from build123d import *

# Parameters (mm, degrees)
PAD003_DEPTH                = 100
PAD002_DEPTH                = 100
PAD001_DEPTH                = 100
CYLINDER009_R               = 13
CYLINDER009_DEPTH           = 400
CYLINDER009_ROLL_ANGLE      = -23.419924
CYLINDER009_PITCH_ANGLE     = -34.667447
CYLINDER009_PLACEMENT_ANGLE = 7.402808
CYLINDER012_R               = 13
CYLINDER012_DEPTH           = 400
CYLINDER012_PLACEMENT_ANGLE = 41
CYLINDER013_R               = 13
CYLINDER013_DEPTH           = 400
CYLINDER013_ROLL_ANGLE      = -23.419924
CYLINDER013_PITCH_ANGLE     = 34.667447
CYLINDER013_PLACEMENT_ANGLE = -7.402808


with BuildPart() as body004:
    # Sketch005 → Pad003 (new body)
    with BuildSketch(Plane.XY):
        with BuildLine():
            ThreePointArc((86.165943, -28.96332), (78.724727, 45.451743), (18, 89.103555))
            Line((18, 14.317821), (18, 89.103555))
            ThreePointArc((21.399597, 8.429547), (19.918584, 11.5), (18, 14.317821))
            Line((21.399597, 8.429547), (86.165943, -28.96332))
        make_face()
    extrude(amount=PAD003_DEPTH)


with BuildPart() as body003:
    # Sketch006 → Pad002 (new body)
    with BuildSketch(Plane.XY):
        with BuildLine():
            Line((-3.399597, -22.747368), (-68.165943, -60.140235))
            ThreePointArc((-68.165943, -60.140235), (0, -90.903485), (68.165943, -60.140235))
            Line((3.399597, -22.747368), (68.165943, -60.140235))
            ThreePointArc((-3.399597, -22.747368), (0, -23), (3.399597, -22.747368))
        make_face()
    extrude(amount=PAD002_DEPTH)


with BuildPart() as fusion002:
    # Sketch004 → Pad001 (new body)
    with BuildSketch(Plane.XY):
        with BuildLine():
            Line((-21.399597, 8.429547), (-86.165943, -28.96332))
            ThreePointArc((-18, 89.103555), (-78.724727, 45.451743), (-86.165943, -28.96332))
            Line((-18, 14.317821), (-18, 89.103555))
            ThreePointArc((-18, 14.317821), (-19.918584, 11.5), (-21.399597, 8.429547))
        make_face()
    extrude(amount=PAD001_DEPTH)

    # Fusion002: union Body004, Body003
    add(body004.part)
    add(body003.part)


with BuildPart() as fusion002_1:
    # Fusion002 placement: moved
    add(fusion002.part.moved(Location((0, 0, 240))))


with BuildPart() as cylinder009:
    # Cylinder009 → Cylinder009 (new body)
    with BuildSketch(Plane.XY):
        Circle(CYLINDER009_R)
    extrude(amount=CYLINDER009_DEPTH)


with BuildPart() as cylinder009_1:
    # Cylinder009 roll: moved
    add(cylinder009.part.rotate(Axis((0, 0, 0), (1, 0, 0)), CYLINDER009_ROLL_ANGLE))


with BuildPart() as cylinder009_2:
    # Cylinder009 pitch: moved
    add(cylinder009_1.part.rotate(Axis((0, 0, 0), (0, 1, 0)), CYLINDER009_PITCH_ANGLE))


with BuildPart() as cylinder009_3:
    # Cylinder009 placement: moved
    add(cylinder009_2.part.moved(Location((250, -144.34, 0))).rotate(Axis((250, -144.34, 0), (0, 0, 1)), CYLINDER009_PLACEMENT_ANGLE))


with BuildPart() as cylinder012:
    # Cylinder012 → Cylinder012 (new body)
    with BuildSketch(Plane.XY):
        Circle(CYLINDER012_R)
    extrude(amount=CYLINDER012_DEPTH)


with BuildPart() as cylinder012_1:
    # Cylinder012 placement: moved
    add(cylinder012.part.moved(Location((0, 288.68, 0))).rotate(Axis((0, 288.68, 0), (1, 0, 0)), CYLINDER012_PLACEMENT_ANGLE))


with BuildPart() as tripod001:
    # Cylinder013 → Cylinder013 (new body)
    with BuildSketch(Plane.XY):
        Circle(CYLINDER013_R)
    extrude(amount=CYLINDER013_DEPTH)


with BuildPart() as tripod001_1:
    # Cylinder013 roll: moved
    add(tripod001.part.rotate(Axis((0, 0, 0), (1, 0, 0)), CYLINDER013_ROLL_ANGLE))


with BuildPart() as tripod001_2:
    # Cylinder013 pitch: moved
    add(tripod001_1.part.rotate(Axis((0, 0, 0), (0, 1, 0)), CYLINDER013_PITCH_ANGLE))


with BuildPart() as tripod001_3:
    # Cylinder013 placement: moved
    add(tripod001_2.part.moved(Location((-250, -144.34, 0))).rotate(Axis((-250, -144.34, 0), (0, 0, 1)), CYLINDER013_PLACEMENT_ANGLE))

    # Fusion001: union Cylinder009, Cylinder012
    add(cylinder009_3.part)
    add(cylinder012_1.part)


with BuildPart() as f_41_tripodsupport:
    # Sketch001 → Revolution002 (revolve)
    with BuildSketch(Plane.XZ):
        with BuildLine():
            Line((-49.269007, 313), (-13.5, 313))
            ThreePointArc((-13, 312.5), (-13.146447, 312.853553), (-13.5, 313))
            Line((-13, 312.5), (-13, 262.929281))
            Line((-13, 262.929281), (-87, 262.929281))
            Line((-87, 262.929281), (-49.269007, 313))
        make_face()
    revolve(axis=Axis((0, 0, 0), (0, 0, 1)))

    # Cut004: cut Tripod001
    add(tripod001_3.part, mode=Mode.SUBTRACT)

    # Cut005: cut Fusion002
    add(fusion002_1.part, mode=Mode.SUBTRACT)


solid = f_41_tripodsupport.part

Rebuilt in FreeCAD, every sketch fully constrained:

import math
import FreeCAD as App
import Part
import Sketcher

V = App.Vector
Q = App.Units.Quantity

doc = App.newDocument("Part")
body = doc.addObject("PartDesign::Body", "Body")

# Sketch on XY plane
sketch1 = doc.addObject("Sketcher::SketchObject", "Sketch")
body.addObject(sketch1)
sketch1.AttachmentSupport = (doc.XY_Plane, [""])
sketch1.MapMode = "FlatFace"
sketch1.addGeometry([
    Part.ArcOfCircle(Part.Circle(V(0, 0, 0), V(0, 0, 1), 90.903485), math.radians(-18.579257), math.radians(78.579258)),
    Part.LineSegment(V(18, 89.103555, 0), V(18, 14.317821, 0)),
    Part.ArcOfCircle(Part.Circle(V(-0.00003, -0.000019, 0), V(0, 0, 1), 23.000035), math.radians(21.500066), math.radians(38.49994)),
    Part.LineSegment(V(21.399597, 8.429547, 0), V(86.165943, -28.96332, 0)),
], False)
sketch1.addConstraint([
    Sketcher.Constraint("Coincident", 0, 2, 1, 1),
    Sketcher.Constraint("Coincident", 1, 2, 2, 2),
    Sketcher.Constraint("Coincident", 2, 1, 3, 1),
    Sketcher.Constraint("Coincident", 3, 2, 0, 1),
    Sketcher.Constraint("Vertical", 1),
    Sketcher.Constraint("Coincident", 0, 3, -1, 1),
    Sketcher.Constraint("Angle", 3, Q("-30 deg")),
    Sketcher.Constraint("DistanceX", -1, 1, 0, 2, Q("18 mm")),
    Sketcher.Constraint("Radius", 0, Q("90.903485 mm")),
    Sketcher.Constraint("Radius", 2, Q("23.000035 mm")),
    Sketcher.Constraint("DistanceY", 3, 2, 2, 3, Q("28.963301 mm")),
    Sketcher.Constraint("DistanceY", 1, 2, 1, 1, Q("74.785734 mm")),
    Sketcher.Constraint("DistanceY", 3, 2, -1, 1, Q("28.96332 mm")),
])
pad1 = doc.addObject("PartDesign::Pad", "Pad")
body.addObject(pad1)
pad1.Profile = sketch1
pad1.Length = 100
body2 = doc.addObject("PartDesign::Body", "Body001")

# Sketch on XY plane
sketch2 = doc.addObject("Sketcher::SketchObject", "Sketch001")
body2.addObject(sketch2)
sketch2.AttachmentSupport = (doc.getObject("XY_Plane001"), [""])
sketch2.MapMode = "FlatFace"
sketch2.addGeometry([
    Part.LineSegment(V(-3.399597, -22.747368, 0), V(-68.165943, -60.140235, 0)),
    Part.ArcOfCircle(Part.Circle(V(0, 0.000001, 0), V(0, 0, 1), 90.903486), math.radians(-138.579257), math.radians(-41.420743)),
    Part.LineSegment(V(68.165943, -60.140235, 0), V(3.399597, -22.747368, 0)),
    Part.ArcOfCircle(Part.Circle(V(0, 0.000021, 0), V(0, 0, 1), 23.000021), math.radians(-98.499943), math.radians(-81.500057)),
], False)
sketch2.addConstraint([
    Sketcher.Constraint("Coincident", 0, 2, 1, 1),
    Sketcher.Constraint("Coincident", 1, 2, 2, 1),
    Sketcher.Constraint("Coincident", 2, 2, 3, 2),
    Sketcher.Constraint("Coincident", 3, 1, 0, 1),
    Sketcher.Constraint("Coincident", 1, 3, -1, 1),
    Sketcher.Constraint("Symmetric", 2, 2, 3, 1, -2),
    Sketcher.Constraint("Horizontal", 0, 2, 1, 2),
    Sketcher.Constraint("Angle", 0, Q("-150 deg")),
    Sketcher.Constraint("Radius", 3, Q("23.000021 mm")),
    Sketcher.Constraint("Radius", 1, Q("90.903486 mm")),
    Sketcher.Constraint("DistanceY", 2, 2, -1, 1, Q("22.747368 mm")),
    Sketcher.Constraint("DistanceY", 2, 2, 3, 3, Q("22.747389 mm")),
])
pad2 = doc.addObject("PartDesign::Pad", "Pad001")
body2.addObject(pad2)
pad2.Profile = sketch2
pad2.Length = 100
body3 = doc.addObject("PartDesign::Body", "Body002")
body3.AllowCompound = True

# Sketch on XY plane
sketch3 = doc.addObject("Sketcher::SketchObject", "Sketch002")
body3.addObject(sketch3)
sketch3.AttachmentSupport = (doc.getObject("XY_Plane002"), [""])
sketch3.MapMode = "FlatFace"
sketch3.addGeometry([
    Part.LineSegment(V(-86.165943, -28.96332, 0), V(-21.399597, 8.429547, 0)),
    Part.ArcOfCircle(Part.Circle(V(0.00003, -0.000019, 0), V(0, 0, 1), 23.000035), math.radians(141.50006), math.radians(158.499934)),
    Part.LineSegment(V(-18, 14.317821, 0), V(-18, 89.103555, 0)),
    Part.ArcOfCircle(Part.Circle(V(0, 0, 0), V(0, 0, 1), 90.903485), math.radians(101.420742), math.radians(198.579257)),
], False)
sketch3.addConstraint([
    Sketcher.Constraint("Coincident", 0, 2, 1, 2),
    Sketcher.Constraint("Coincident", 1, 1, 2, 1),
    Sketcher.Constraint("Coincident", 2, 2, 3, 1),
    Sketcher.Constraint("Coincident", 3, 2, 0, 1),
    Sketcher.Constraint("Vertical", 2),
    Sketcher.Constraint("Coincident", 3, 3, -1, 1),
    Sketcher.Constraint("Angle", 0, Q("30 deg")),
    Sketcher.Constraint("DistanceX", 1, 1, -1, 1, Q("18 mm")),
    Sketcher.Constraint("Radius", 1, Q("23.000035 mm")),
    Sketcher.Constraint("Radius", 3, Q("90.903485 mm")),
    Sketcher.Constraint("DistanceY", 3, 2, 1, 3, Q("28.963301 mm")),
    Sketcher.Constraint("DistanceY", 2, 1, 2, 2, Q("74.785734 mm")),
    Sketcher.Constraint("DistanceY", 3, 2, -1, 1, Q("28.96332 mm")),
])
pad3 = doc.addObject("PartDesign::Pad", "Pad002")
body3.addObject(pad3)
pad3.Profile = sketch3
pad3.Length = 100
doc.recompute()

boolean = doc.addObject("PartDesign::Boolean", "Boolean")
body3.addObject(boolean)
boolean.Type = "Fuse"
boolean.addObjects([body])
doc.recompute()

boolean2 = doc.addObject("PartDesign::Boolean", "Boolean001")
body3.addObject(boolean2)
boolean2.Type = "Fuse"
boolean2.addObjects([body2])
body4 = doc.addObject("PartDesign::Body", "Body003")
body4.AllowCompound = True
doc.recompute()

body3.Placement = App.Placement(V(0, 0, 240), App.Rotation(V(0, 0, 1), 0))
boolean3 = doc.addObject("PartDesign::Boolean", "Boolean002")
body4.addObject(boolean3)
boolean3.Type = "Fuse"
boolean3.addObjects([body3])
body5 = doc.addObject("PartDesign::Body", "Body004")

# Sketch on XY plane
sketch4 = doc.addObject("Sketcher::SketchObject", "Sketch003")
body5.addObject(sketch4)
sketch4.AttachmentSupport = (doc.getObject("XY_Plane004"), [""])
sketch4.MapMode = "FlatFace"
sketch4.addGeometry(Part.Circle(V(0, 0, 0), V(0, 0, 1), 13), False)
sketch4.addConstraint([
    Sketcher.Constraint("Coincident", 0, 3, -1, 1),
    Sketcher.Constraint("Diameter", 0, Q("26 mm")),
])
pad4 = doc.addObject("PartDesign::Pad", "Pad003")
body5.addObject(pad4)
pad4.Profile = sketch4
pad4.Length = 400
body6 = doc.addObject("PartDesign::Body", "Body005")
doc.recompute()

body5.Placement = App.Placement(V(0, 0, 0), App.Rotation(V(1, 0, 0), 336.580076))
boolean4 = doc.addObject("PartDesign::Boolean", "Boolean003")
body6.addObject(boolean4)
boolean4.Type = "Fuse"
boolean4.addObjects([body5])
body7 = doc.addObject("PartDesign::Body", "Body006")
doc.recompute()

body6.Placement = App.Placement(V(0, 0, 0), App.Rotation(V(0, 1, 0), 325.332553))
boolean5 = doc.addObject("PartDesign::Boolean", "Boolean004")
body7.addObject(boolean5)
boolean5.Type = "Fuse"
boolean5.addObjects([body6])
body8 = doc.addObject("PartDesign::Body", "Body007")
doc.recompute()

body7.Placement = App.Placement(V(250, -144.34, 0), App.Rotation(V(0, 0, 1), 7.402808))
boolean6 = doc.addObject("PartDesign::Boolean", "Boolean005")
body8.addObject(boolean6)
boolean6.Type = "Fuse"
boolean6.addObjects([body7])
body9 = doc.addObject("PartDesign::Body", "Body008")

# Sketch on XY plane
sketch5 = doc.addObject("Sketcher::SketchObject", "Sketch004")
body9.addObject(sketch5)
sketch5.AttachmentSupport = (doc.getObject("XY_Plane008"), [""])
sketch5.MapMode = "FlatFace"
sketch5.addGeometry(Part.Circle(V(0, 0, 0), V(0, 0, 1), 13), False)
sketch5.addConstraint([
    Sketcher.Constraint("Coincident", 0, 3, -1, 1),
    Sketcher.Constraint("Diameter", 0, Q("26 mm")),
])
pad5 = doc.addObject("PartDesign::Pad", "Pad004")
body9.addObject(pad5)
pad5.Profile = sketch5
pad5.Length = 400
body10 = doc.addObject("PartDesign::Body", "Body009")
doc.recompute()

body9.Placement = App.Placement(V(0, 288.68, 0), App.Rotation(V(1, 0, 0), 41))
boolean7 = doc.addObject("PartDesign::Boolean", "Boolean006")
body10.addObject(boolean7)
boolean7.Type = "Fuse"
boolean7.addObjects([body9])
body11 = doc.addObject("PartDesign::Body", "Body010")

# Sketch on XY plane
sketch6 = doc.addObject("Sketcher::SketchObject", "Sketch005")
body11.addObject(sketch6)
sketch6.AttachmentSupport = (doc.getObject("XY_Plane010"), [""])
sketch6.MapMode = "FlatFace"
sketch6.addGeometry(Part.Circle(V(0, 0, 0), V(0, 0, 1), 13), False)
sketch6.addConstraint([
    Sketcher.Constraint("Coincident", 0, 3, -1, 1),
    Sketcher.Constraint("Diameter", 0, Q("26 mm")),
])
pad6 = doc.addObject("PartDesign::Pad", "Pad005")
body11.addObject(pad6)
pad6.Profile = sketch6
pad6.Length = 400
body12 = doc.addObject("PartDesign::Body", "Body011")
doc.recompute()

body11.Placement = App.Placement(V(0, 0, 0), App.Rotation(V(1, 0, 0), 336.580076))
boolean8 = doc.addObject("PartDesign::Boolean", "Boolean007")
body12.addObject(boolean8)
boolean8.Type = "Fuse"
boolean8.addObjects([body11])
body13 = doc.addObject("PartDesign::Body", "Body012")
doc.recompute()

body12.Placement = App.Placement(V(0, 0, 0), App.Rotation(V(0, 1, 0), 34.667447))
boolean9 = doc.addObject("PartDesign::Boolean", "Boolean008")
body13.addObject(boolean9)
boolean9.Type = "Fuse"
boolean9.addObjects([body12])
body14 = doc.addObject("PartDesign::Body", "Body013")
body14.AllowCompound = True
doc.recompute()

body13.Placement = App.Placement(V(-250, -144.34, 0), App.Rotation(V(0, 0, 1), 352.597192))
boolean10 = doc.addObject("PartDesign::Boolean", "Boolean009")
body14.addObject(boolean10)
boolean10.Type = "Fuse"
boolean10.addObjects([body13])
doc.recompute()

boolean11 = doc.addObject("PartDesign::Boolean", "Boolean010")
body14.addObject(boolean11)
boolean11.Type = "Fuse"
boolean11.addObjects([body8])
doc.recompute()

boolean12 = doc.addObject("PartDesign::Boolean", "Boolean011")
body14.addObject(boolean12)
boolean12.Type = "Fuse"
boolean12.addObjects([body10])
body15 = doc.addObject("PartDesign::Body", "Body014")

# Sketch on XZ plane
sketch7 = doc.addObject("Sketcher::SketchObject", "Sketch006")
body15.addObject(sketch7)
sketch7.AttachmentSupport = (doc.getObject("XZ_Plane014"), [""])
sketch7.MapMode = "FlatFace"
sketch7.addGeometry([
    Part.LineSegment(V(-13.5, 313, 0), V(-49.269007, 313, 0)),  # 0
    Part.LineSegment(V(-49.269007, 313, 0), V(-87, 262.929281, 0)),  # 1
    Part.LineSegment(V(-87, 262.929281, 0), V(-13, 262.929281, 0)),  # 2
    Part.LineSegment(V(-13, 262.929281, 0), V(-13, 312.5, 0)),  # 3
    Part.ArcOfCircle(Part.Circle(V(-13.500001, 312.499999, 0), V(0, 0, 1), 0.500001), math.radians(0.000153), math.radians(89.999847)),  # 4
], False)
sketch7.addConstraint([
    Sketcher.Constraint("Coincident", 0, 2, 1, 1),
    Sketcher.Constraint("Coincident", 1, 2, 2, 1),
    Sketcher.Constraint("Coincident", 2, 2, 3, 1),
    Sketcher.Constraint("Coincident", 3, 2, 4, 1),
    Sketcher.Constraint("Coincident", 4, 2, 0, 1),
    Sketcher.Constraint("Horizontal", 0),
    Sketcher.Constraint("Horizontal", 2),
    Sketcher.Constraint("Vertical", 3),
    Sketcher.Constraint("Horizontal", 4, 3, 3, 2),
    Sketcher.Constraint("Radius", 4, Q("0.500001 mm")),
    Sketcher.Constraint("DistanceX", 2, 1, 2, 2, Q("74 mm")),
    Sketcher.Constraint("Angle", 1, Q("-127 deg")),
    Sketcher.Constraint("DistanceY", -1, 1, 0, 2, Q("313 mm")),
    Sketcher.Constraint("DistanceX", 1, 2, -1, 1, Q("87 mm")),
    Sketcher.Constraint("DistanceX", 4, 2, -1, 1, Q("13.5 mm")),
    Sketcher.Constraint("DistanceY", 3, 1, 3, 2, Q("49.570719 mm")),
])
revolution = doc.addObject("PartDesign::Revolution", "Revolution")
body15.addObject(revolution)
revolution.Profile = sketch7
revolution.ReferenceAxis = (sketch7, ["V_Axis"])
revolution.Angle = 360
doc.recompute()

boolean13 = doc.addObject("PartDesign::Boolean", "Boolean012")
body15.addObject(boolean13)
boolean13.Type = "Cut"
boolean13.addObjects([body14])
doc.recompute()

boolean14 = doc.addObject("PartDesign::Boolean", "Boolean013")
body15.addObject(boolean14)
boolean14.Type = "Cut"
boolean14.addObjects([body4])

doc.recompute()
